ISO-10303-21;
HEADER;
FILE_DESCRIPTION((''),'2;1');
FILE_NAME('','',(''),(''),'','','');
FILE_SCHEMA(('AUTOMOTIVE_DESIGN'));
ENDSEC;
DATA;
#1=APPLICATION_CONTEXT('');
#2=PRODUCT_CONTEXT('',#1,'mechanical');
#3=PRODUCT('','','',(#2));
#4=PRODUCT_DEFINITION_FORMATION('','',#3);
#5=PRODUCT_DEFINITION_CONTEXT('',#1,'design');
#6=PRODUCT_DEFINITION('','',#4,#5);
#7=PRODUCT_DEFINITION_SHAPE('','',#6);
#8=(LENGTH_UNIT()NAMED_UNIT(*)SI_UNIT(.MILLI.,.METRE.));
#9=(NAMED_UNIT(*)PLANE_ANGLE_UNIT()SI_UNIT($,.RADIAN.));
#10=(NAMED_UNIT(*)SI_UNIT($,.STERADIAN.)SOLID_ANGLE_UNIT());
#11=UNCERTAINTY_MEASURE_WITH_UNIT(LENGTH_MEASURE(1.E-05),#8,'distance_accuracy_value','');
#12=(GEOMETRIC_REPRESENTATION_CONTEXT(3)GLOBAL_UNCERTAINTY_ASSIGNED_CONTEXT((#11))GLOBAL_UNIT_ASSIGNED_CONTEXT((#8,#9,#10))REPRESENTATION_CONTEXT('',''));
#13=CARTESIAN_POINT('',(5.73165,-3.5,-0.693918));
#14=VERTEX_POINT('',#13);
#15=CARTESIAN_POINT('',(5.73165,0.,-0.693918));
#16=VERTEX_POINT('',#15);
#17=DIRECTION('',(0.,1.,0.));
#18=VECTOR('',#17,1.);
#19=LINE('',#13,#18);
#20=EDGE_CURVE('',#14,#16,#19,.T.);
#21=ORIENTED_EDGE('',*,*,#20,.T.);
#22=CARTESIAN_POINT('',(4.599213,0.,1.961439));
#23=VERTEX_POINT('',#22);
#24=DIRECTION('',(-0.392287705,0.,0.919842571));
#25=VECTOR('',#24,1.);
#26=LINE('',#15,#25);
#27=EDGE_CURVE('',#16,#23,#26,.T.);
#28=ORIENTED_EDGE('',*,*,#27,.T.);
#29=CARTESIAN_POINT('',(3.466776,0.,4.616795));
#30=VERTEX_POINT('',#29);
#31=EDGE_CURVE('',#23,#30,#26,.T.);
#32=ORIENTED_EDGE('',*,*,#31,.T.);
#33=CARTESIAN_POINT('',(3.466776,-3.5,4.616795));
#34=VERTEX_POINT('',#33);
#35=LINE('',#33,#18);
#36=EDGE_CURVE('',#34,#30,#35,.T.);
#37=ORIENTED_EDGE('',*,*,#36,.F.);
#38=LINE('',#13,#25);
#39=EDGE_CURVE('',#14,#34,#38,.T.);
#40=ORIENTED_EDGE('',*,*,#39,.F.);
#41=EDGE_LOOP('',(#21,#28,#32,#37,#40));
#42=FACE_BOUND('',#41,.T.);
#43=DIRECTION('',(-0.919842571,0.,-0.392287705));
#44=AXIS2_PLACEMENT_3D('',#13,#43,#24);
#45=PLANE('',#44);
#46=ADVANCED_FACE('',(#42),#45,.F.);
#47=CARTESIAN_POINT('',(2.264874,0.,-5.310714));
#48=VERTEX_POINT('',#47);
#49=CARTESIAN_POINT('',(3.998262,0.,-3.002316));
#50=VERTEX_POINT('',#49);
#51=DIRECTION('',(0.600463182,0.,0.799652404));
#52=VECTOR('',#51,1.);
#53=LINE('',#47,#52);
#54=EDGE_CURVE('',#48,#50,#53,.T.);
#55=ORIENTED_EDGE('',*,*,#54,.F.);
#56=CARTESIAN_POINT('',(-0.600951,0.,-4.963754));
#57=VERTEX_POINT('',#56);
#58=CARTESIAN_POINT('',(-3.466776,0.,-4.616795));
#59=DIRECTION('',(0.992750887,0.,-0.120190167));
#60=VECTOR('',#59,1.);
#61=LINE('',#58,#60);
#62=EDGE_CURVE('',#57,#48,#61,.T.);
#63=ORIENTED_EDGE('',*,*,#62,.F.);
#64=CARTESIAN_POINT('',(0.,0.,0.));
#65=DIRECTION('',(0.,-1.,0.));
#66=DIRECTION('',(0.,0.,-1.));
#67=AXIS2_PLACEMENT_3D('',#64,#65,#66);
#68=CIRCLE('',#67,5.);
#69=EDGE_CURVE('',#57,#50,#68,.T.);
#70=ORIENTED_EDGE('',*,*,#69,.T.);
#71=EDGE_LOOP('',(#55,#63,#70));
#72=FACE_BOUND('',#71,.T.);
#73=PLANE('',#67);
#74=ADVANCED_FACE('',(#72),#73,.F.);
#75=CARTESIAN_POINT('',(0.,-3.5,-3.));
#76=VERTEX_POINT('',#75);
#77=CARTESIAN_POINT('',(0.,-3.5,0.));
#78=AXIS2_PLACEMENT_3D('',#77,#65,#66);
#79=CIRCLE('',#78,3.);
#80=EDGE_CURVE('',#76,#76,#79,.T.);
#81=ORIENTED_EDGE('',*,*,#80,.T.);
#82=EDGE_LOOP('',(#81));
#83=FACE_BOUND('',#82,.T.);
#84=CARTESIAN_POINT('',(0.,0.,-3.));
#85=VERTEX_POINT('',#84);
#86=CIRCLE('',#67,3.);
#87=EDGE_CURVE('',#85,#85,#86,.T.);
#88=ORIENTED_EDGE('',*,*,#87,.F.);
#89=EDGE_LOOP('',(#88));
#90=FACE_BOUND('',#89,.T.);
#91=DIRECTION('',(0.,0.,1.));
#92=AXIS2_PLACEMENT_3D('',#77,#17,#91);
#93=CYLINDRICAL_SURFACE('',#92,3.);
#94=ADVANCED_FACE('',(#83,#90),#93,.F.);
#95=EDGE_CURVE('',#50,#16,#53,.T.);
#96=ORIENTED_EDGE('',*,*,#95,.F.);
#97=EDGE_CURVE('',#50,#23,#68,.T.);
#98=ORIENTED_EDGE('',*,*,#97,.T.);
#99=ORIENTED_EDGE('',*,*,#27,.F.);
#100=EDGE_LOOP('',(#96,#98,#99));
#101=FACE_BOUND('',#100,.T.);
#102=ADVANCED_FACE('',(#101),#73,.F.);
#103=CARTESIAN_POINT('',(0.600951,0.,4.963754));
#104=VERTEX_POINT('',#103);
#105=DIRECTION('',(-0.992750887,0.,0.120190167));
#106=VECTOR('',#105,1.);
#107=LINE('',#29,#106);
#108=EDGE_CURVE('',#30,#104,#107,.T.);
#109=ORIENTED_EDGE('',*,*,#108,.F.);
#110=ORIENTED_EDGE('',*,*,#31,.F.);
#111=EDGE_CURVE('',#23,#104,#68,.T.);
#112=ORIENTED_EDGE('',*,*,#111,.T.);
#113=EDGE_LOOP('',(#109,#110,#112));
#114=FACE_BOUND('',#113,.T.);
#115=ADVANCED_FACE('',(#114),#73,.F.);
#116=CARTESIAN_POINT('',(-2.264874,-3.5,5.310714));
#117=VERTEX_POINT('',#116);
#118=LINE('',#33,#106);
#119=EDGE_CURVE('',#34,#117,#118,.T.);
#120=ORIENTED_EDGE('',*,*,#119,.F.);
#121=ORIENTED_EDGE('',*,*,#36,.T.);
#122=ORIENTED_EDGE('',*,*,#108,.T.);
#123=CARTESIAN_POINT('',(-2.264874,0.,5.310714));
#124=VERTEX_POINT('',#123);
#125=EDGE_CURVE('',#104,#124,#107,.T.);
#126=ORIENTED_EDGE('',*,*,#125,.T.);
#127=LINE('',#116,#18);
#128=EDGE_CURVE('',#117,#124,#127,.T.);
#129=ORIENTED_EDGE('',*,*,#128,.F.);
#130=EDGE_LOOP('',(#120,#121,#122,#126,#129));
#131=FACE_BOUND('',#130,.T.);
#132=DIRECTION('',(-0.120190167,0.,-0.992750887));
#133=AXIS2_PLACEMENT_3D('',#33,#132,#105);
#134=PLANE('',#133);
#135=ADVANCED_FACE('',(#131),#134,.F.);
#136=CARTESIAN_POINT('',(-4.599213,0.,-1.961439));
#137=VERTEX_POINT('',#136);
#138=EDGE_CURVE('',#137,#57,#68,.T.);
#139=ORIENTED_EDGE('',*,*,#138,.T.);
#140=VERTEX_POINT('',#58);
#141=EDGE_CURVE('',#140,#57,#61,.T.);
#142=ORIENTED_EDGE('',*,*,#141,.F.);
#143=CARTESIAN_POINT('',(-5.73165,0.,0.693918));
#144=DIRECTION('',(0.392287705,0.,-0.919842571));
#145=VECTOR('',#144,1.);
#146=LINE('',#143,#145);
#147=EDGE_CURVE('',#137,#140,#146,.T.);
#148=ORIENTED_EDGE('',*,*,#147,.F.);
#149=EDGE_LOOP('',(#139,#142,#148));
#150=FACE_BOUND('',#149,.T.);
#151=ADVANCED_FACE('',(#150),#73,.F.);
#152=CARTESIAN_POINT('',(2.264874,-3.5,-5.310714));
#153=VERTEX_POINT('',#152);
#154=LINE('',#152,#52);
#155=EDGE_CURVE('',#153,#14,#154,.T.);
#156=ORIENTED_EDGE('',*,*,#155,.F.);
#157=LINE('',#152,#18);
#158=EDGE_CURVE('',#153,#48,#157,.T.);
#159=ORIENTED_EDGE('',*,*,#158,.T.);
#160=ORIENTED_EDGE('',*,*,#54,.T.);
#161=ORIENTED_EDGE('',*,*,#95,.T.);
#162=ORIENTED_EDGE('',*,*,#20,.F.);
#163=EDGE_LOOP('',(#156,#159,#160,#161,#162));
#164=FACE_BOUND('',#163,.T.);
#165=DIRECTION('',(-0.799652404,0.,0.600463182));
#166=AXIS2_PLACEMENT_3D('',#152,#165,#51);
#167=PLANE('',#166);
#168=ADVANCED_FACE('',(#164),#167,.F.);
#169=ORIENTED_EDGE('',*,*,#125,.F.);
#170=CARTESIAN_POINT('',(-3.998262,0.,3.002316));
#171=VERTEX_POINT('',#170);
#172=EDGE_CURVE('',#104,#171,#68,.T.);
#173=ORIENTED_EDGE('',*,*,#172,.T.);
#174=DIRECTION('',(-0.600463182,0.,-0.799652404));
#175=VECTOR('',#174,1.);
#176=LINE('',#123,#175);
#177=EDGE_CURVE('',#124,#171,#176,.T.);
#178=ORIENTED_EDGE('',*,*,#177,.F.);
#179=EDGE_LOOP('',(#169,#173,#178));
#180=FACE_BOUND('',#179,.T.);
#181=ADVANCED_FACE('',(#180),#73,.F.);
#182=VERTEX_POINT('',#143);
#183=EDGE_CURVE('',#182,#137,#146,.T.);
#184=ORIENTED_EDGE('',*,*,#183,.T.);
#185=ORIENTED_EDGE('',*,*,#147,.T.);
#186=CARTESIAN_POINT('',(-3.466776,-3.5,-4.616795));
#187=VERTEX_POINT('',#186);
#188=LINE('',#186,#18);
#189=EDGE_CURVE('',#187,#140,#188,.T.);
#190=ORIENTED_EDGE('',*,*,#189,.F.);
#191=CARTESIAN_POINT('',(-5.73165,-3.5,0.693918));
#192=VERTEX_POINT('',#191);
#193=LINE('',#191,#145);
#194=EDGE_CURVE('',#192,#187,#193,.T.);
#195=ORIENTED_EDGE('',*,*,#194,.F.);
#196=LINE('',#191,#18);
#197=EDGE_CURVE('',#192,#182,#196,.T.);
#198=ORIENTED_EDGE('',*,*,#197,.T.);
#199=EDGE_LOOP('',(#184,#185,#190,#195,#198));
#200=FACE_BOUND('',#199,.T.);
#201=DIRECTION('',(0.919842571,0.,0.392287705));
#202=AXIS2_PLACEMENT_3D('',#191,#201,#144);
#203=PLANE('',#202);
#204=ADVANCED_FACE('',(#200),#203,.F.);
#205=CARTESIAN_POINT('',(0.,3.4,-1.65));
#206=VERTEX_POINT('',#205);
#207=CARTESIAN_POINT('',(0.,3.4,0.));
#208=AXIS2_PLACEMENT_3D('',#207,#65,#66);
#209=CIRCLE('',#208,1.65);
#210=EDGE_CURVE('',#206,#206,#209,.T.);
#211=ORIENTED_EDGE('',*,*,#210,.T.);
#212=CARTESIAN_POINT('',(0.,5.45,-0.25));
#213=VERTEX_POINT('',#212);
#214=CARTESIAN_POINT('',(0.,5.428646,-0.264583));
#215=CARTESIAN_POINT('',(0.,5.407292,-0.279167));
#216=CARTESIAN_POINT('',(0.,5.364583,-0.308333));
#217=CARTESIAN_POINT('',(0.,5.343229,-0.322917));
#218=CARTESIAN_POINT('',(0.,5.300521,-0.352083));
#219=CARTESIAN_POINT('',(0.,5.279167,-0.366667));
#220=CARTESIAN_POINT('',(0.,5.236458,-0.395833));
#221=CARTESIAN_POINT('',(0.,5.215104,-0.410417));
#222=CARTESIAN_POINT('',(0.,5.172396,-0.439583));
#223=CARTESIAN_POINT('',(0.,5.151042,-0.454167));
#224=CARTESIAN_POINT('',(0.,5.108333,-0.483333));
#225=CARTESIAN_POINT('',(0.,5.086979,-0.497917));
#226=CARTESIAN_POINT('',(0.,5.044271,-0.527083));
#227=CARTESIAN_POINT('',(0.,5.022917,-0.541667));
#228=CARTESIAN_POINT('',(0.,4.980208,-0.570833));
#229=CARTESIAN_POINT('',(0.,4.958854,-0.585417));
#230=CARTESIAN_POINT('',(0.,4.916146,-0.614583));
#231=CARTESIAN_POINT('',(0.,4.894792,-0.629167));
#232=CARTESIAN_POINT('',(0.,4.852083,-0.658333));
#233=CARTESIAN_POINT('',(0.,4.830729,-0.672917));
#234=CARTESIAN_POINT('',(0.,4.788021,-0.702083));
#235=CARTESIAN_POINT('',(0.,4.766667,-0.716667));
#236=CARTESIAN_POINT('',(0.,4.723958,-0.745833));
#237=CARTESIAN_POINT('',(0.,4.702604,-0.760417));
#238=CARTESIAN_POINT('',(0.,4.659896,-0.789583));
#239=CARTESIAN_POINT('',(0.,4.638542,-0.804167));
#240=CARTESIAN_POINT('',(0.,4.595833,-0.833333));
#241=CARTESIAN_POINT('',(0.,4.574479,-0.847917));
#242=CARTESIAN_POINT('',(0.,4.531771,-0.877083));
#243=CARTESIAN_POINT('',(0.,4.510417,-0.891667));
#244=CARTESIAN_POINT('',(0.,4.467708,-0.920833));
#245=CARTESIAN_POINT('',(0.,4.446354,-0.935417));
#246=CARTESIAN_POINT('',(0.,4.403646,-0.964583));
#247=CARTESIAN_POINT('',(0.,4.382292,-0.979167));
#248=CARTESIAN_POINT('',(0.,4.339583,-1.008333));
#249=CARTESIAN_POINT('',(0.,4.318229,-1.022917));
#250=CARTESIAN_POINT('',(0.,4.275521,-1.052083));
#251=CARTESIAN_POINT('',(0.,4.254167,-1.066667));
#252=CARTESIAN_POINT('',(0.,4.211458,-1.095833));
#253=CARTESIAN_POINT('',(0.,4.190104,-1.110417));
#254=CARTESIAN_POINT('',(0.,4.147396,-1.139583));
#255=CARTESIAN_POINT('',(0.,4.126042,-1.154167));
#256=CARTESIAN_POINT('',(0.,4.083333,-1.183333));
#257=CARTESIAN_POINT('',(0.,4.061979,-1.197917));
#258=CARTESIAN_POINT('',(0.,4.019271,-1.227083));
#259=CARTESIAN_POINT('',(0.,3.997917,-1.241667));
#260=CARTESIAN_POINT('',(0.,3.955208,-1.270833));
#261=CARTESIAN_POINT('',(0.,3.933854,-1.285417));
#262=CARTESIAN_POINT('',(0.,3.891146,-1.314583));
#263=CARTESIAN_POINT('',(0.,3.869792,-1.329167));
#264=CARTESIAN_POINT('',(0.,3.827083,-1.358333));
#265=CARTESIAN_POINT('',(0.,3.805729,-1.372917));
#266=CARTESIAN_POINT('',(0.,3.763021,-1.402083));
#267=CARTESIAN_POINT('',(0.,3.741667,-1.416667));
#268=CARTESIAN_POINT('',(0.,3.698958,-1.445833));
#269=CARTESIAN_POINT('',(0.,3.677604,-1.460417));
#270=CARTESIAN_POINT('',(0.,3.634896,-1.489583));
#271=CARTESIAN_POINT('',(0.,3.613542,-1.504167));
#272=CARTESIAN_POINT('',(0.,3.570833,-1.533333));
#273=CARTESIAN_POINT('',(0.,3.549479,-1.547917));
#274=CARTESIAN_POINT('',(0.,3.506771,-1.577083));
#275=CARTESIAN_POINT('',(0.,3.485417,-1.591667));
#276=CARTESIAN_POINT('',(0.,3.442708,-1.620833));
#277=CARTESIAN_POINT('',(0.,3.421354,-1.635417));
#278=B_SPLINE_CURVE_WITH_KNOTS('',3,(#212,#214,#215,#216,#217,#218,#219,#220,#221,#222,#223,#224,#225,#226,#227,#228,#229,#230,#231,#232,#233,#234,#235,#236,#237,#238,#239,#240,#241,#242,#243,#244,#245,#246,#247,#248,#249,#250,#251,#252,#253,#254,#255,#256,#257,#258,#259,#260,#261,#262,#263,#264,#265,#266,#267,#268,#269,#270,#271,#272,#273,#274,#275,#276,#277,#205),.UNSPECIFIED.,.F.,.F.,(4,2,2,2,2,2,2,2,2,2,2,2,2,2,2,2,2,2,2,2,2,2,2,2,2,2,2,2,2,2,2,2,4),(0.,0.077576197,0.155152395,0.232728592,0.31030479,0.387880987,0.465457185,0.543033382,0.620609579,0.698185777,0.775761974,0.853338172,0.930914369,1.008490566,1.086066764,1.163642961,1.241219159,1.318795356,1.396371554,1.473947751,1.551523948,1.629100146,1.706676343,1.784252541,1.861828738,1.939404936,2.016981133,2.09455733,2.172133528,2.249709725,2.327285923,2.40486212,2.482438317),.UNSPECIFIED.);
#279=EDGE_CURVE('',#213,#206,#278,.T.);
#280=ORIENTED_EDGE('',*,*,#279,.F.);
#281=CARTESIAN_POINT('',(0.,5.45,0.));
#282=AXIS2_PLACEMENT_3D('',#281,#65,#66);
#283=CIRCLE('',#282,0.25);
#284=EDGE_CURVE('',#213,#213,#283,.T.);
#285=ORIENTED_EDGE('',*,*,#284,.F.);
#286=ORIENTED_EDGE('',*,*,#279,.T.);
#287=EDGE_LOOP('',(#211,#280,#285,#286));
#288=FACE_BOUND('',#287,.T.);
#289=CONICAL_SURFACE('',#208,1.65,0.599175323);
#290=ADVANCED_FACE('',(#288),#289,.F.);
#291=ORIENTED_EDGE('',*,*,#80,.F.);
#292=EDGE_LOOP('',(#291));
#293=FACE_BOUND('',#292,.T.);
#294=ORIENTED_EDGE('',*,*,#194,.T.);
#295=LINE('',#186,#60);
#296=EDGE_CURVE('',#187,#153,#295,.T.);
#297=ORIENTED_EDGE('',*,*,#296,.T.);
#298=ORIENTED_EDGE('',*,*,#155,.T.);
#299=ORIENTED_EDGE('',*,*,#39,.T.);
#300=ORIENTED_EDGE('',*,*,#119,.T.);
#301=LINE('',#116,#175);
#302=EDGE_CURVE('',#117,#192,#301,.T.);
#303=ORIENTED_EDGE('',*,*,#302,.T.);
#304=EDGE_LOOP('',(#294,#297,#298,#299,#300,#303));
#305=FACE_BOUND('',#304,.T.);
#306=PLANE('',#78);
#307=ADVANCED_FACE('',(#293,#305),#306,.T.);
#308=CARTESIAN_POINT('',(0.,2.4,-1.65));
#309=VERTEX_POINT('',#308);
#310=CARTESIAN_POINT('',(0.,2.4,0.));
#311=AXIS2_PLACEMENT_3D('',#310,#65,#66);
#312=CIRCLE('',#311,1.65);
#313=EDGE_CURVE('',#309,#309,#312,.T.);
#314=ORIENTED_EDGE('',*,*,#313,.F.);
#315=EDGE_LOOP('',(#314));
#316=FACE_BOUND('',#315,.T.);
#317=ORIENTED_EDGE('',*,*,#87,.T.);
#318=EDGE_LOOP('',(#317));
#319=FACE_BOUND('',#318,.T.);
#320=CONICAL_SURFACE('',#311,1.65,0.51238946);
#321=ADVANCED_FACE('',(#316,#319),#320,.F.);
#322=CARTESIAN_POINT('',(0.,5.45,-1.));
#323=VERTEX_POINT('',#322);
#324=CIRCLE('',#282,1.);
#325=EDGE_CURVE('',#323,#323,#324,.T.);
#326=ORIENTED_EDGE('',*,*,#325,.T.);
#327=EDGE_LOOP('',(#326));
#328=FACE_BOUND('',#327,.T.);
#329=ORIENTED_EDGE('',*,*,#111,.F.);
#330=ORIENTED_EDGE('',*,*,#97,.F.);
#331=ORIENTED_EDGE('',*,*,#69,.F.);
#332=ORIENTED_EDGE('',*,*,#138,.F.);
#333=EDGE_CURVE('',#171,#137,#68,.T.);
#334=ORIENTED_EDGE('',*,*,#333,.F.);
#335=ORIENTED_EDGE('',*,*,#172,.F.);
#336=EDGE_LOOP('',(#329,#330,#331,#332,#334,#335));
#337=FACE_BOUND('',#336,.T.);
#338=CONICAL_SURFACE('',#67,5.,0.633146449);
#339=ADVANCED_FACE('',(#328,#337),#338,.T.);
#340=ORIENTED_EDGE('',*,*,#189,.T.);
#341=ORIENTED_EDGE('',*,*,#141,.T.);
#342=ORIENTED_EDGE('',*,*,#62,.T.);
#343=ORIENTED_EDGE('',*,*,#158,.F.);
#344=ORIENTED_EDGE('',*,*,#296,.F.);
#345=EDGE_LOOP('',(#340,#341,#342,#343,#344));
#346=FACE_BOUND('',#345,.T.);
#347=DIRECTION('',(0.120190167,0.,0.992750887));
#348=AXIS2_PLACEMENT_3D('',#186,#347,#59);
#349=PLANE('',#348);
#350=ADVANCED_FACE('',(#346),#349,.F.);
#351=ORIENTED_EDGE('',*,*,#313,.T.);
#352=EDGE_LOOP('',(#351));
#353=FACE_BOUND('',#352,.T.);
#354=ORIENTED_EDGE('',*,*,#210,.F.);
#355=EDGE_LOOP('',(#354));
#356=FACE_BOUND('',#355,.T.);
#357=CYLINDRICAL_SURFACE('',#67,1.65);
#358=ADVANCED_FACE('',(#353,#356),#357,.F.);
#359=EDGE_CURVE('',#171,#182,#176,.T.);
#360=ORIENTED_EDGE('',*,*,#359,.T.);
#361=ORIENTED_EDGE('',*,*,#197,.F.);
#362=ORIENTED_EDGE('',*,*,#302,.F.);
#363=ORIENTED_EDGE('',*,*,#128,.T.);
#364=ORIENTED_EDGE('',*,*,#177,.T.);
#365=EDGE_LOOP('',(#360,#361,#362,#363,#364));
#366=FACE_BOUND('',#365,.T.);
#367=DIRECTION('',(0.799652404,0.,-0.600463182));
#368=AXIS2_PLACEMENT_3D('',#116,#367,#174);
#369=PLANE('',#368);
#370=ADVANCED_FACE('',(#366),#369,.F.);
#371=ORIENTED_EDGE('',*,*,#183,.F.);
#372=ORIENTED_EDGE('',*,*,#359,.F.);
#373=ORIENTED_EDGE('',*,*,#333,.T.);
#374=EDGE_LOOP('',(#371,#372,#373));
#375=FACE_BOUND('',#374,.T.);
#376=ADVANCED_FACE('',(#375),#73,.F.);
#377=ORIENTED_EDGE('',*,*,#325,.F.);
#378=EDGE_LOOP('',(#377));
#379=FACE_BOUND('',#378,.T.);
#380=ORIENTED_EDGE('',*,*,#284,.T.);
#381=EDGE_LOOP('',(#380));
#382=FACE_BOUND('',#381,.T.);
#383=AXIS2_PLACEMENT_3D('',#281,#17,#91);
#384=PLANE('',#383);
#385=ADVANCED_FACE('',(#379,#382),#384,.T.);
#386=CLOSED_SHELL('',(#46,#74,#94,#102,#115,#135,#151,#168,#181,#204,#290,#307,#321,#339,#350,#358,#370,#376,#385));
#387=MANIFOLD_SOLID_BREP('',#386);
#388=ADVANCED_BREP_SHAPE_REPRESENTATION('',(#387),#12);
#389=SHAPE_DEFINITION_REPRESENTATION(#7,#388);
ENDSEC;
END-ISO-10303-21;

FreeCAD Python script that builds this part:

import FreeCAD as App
import Part
import Sketcher

V = App.Vector


def add_polygon(sketch, points):
    """Adds a closed chain of lines whose ends are joined by coincident constraints."""
    first, n = sketch.GeometryCount, len(points)
    for a, b in zip(points, points[1:] + points[:1]):
        sketch.addGeometry(Part.LineSegment(App.Vector(*a, 0), App.Vector(*b, 0)), False)
    for i in range(n):
        sketch.addConstraint(Sketcher.Constraint("Coincident", first + i, 2, first + (i + 1) % n, 1))

doc = App.newDocument("Part")
body = doc.addObject("PartDesign::Body", "Body")

# Sketch on XY plane
sketch1 = body.newObject("Sketcher::SketchObject", "Sketch")
sketch1.AttachmentSupport = (doc.getObject("XY_Plane"), [""])
sketch1.MapMode = "FlatFace"
add_polygon(sketch1, [(0, 0), (5, 0), (1, 5.5), (0, 5.5)])  # lines 0-3
sketch1.addConstraint(Sketcher.Constraint("Horizontal", 0))
sketch1.addConstraint(Sketcher.Constraint("Horizontal", 2))
sketch1.addConstraint(Sketcher.Constraint("Vertical", 3))
sketch1.addConstraint(Sketcher.Constraint("Coincident", 3, 2, -1, 1))
sketch1.addConstraint(Sketcher.Constraint("DistanceX", 0, 1, 0, 2, 5.0))
sketch1.addConstraint(Sketcher.Constraint("DistanceX", 2, 2, 2, 1, 1.0))
sketch1.addConstraint(Sketcher.Constraint("DistanceY", 3, 2, 3, 1, 5.45))
revolution = body.newObject("PartDesign::Revolution", "Revolution")
revolution.Profile = sketch1
revolution.ReferenceAxis = (sketch1, ["V_Axis"])
revolution.Angle = 360

# Sketch on XY plane
sketch2 = body.newObject("Sketcher::SketchObject", "Sketch001")
sketch2.AttachmentSupport = (doc.getObject("XY_Plane"), [""])
sketch2.MapMode = "FlatFace"
add_polygon(sketch2, [(-1.65, 3.4), (-1.65, 2.4), (-3, 0), (0, 0), (0, 5.45), (-0.25, 5.45)])  # lines 0-5
sketch2.addConstraint(Sketcher.Constraint("Vertical", 0))
sketch2.addConstraint(Sketcher.Constraint("Horizontal", 2))
sketch2.addConstraint(Sketcher.Constraint("Vertical", 3))
sketch2.addConstraint(Sketcher.Constraint("Horizontal", 4))
sketch2.addConstraint(Sketcher.Constraint("Coincident", 2, 2, -1, 1))
sketch2.addConstraint(Sketcher.Constraint("DistanceX", 2, 1, 2, 2, 3.0))
sketch2.addConstraint(Sketcher.Constraint("DistanceY", 0, 2, 0, 1, 1.0))
sketch2.addConstraint(Sketcher.Constraint("DistanceX", 4, 2, 4, 1, 0.25))
sketch2.addConstraint(Sketcher.Constraint("DistanceY", 3, 1, 3, 2, 5.45))
sketch2.addConstraint(Sketcher.Constraint("DistanceY", -1, 1, 0, 2, 2.4))
sketch2.addConstraint(Sketcher.Constraint("DistanceX", 0, 2, 4, 2, 1.4))
groove = body.newObject("PartDesign::Groove", "Groove")
groove.Profile = sketch2
groove.ReferenceAxis = (sketch2, ["V_Axis"])
groove.Angle = 360

# Sketch on XZ plane
sketch3 = body.newObject("Sketcher::SketchObject", "Sketch002")
sketch3.AttachmentSupport = (doc.getObject("XZ_Plane"), [""])
sketch3.MapMode = "FlatFace"
add_polygon(sketch3, [(5.7, -0.7), (3.5, 4.6), (-2.3, 5.3), (-5.7, 0.7), (-3.5, -4.6), (2.3, -5.3)])  # lines 0-5
sketch3.addGeometry(Part.Circle(V(0, 0, 0), V(0, 0, 1), 3), False)  # 6
sketch3.addConstraint(Sketcher.Constraint("Coincident", 6, 3, -1, 1))
sketch3.addConstraint(Sketcher.Constraint("Symmetric", 0, 2, 3, 2, -1, 1))
sketch3.addConstraint(Sketcher.Constraint("Symmetric", 1, 2, 4, 2, -1, 1))
sketch3.addConstraint(Sketcher.Constraint("Symmetric", 2, 2, 5, 2, -1, 1))
sketch3.addConstraint(Sketcher.Constraint("Equal", 0, 1))
sketch3.addConstraint(Sketcher.Constraint("Equal", 1, 2))
sketch3.addConstraint(Sketcher.Constraint("Diameter", 6, 6.0))
sketch3.addConstraint(Sketcher.Constraint("DistanceX", 3, 2, 1, 2, 1.201902))
sketch3.addConstraint(Sketcher.Constraint("DistanceX", 2, 2, -1, 1, 5.73165))
sketch3.addConstraint(Sketcher.Constraint("DistanceY", -1, 1, 2, 2, 0.693918))
sketch3.addConstraint(Sketcher.Constraint("DistanceX", 1, 2, 0, 2, 5.73165))
pad1 = body.newObject("PartDesign::Pad", "Pad")
pad1.Profile = sketch3
pad1.Length = 3.5

doc.recompute()
